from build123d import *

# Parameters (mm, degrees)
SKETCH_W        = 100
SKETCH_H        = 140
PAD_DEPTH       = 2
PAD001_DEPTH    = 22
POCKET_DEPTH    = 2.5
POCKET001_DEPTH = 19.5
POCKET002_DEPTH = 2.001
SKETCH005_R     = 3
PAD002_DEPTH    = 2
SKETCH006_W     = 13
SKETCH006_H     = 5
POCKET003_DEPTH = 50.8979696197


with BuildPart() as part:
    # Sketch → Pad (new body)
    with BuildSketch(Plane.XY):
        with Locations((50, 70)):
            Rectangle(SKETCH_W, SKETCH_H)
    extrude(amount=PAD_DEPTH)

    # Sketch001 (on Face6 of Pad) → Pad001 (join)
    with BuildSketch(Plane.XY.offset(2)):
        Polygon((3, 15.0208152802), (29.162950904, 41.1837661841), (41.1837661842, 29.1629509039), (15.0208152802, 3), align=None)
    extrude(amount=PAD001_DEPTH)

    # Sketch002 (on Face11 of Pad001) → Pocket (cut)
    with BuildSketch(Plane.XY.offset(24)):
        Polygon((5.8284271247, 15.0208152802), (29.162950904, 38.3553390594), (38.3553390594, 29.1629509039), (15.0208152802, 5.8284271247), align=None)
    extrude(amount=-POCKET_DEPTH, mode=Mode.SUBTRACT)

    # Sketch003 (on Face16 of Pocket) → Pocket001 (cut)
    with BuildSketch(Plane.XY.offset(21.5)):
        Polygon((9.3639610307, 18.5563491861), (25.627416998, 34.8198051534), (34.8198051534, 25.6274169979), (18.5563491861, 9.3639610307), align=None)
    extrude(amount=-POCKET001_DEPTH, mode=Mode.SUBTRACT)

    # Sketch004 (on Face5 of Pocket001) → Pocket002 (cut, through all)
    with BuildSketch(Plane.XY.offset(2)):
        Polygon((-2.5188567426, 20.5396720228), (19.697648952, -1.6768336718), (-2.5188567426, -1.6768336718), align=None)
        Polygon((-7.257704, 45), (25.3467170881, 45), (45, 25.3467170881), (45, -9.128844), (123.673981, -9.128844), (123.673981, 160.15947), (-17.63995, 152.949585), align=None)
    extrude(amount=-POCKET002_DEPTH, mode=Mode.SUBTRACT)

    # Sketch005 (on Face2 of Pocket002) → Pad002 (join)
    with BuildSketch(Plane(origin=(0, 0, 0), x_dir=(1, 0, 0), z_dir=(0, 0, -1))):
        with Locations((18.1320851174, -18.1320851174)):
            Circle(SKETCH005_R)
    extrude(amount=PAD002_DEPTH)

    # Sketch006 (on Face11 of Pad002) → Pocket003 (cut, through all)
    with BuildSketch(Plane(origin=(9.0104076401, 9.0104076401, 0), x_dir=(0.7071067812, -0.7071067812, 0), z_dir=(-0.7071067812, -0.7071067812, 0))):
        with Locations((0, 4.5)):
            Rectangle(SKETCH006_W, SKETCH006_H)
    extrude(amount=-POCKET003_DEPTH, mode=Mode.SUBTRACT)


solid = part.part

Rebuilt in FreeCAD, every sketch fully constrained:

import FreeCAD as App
import Part
import Sketcher

V = App.Vector
Q = App.Units.Quantity

doc = App.newDocument("Part")
body = doc.addObject("PartDesign::Body", "Body")

# Sketch on XY plane
sketch1 = body.newObject("Sketcher::SketchObject", "Sketch")
sketch1.AttachmentSupport = (doc.getObject("XY_Plane"), [""])
sketch1.MapMode = "FlatFace"
sketch1.addGeometry(Part.LineSegment(V(0, 140, 0), V(0, 0, 0)), False)
sketch1.addGeometry(Part.LineSegment(V(0, 0, 0), V(100, 0, 0)), False)
sketch1.addGeometry(Part.LineSegment(V(100, 0, 0), V(100, 140, 0)), False)
sketch1.addGeometry(Part.LineSegment(V(100, 140, 0), V(0, 140, 0)), False)
sketch1.addConstraint(Sketcher.Constraint("Coincident", 0, 2, 1, 1))
sketch1.addConstraint(Sketcher.Constraint("Coincident", 1, 2, 2, 1))
sketch1.addConstraint(Sketcher.Constraint("Coincident", 2, 2, 3, 1))
sketch1.addConstraint(Sketcher.Constraint("Coincident", 3, 2, 0, 1))
sketch1.addConstraint(Sketcher.Constraint("Vertical", 0))
sketch1.addConstraint(Sketcher.Constraint("Horizontal", 1))
sketch1.addConstraint(Sketcher.Constraint("Vertical", 2))
sketch1.addConstraint(Sketcher.Constraint("Horizontal", 3))
sketch1.addConstraint(Sketcher.Constraint("Coincident", 0, 2, -1, 1))
sketch1.addConstraint(Sketcher.Constraint("DistanceX", 1, 1, 1, 2, 100.0))
sketch1.addConstraint(Sketcher.Constraint("DistanceY", 0, 2, 0, 1, 140.0))
pad1 = body.newObject("PartDesign::Pad", "Pad")
pad1.Profile = sketch1
pad1.Length = 2

# Sketch on XY plane
sketch2 = body.newObject("Sketcher::SketchObject", "Sketch001")
sketch2.AttachmentSupport = (doc.getObject("XY_Plane"), [""])
sketch2.MapMode = "FlatFace"
sketch2.AttachmentOffset = App.Placement(V(0, 0, 2), App.Rotation())
sketch2.addGeometry(Part.LineSegment(V(29.162951, 41.183766, 0), V(3, 15.020815, 0)), False)
sketch2.addGeometry(Part.LineSegment(V(3, 15.020815, 0), V(15.020815, 3, 0)), False)
sketch2.addGeometry(Part.LineSegment(V(15.020815, 3, 0), V(41.183766, 29.162951, 0)), False)
sketch2.addGeometry(Part.LineSegment(V(41.183766, 29.162951, 0), V(29.162951, 41.183766, 0)), False)
sketch2.addConstraint(Sketcher.Constraint("Coincident", 0, 2, 1, 1))
sketch2.addConstraint(Sketcher.Constraint("Coincident", 1, 2, 2, 1))
sketch2.addConstraint(Sketcher.Constraint("Coincident", 2, 2, 3, 1))
sketch2.addConstraint(Sketcher.Constraint("Coincident", 3, 2, 0, 1))
sketch2.addConstraint(Sketcher.Constraint("Perpendicular", 0, 1))
sketch2.addConstraint(Sketcher.Constraint("Perpendicular", 1, 2))
sketch2.addConstraint(Sketcher.Constraint("Perpendicular", 2, 3))
sketch2.addConstraint(Sketcher.Constraint("Angle", 0, Q("-135 deg")))
sketch2.addConstraint(Sketcher.Constraint("Distance", 0, 37.0))
sketch2.addConstraint(Sketcher.Constraint("Distance", 1, 17.0))
sketch2.addConstraint(Sketcher.Constraint("DistanceX", -1, 1, 0, 2, 3.0))
sketch2.addConstraint(Sketcher.Constraint("DistanceY", -1, 1, 1, 2, 3.0))
pad2 = body.newObject("PartDesign::Pad", "Pad001")
pad2.Profile = sketch2
pad2.Length = 22

# Sketch on XY plane
sketch3 = body.newObject("Sketcher::SketchObject", "Sketch002")
sketch3.AttachmentSupport = (doc.getObject("XY_Plane"), [""])
sketch3.MapMode = "FlatFace"
sketch3.AttachmentOffset = App.Placement(V(0, 0, 24), App.Rotation())
sketch3.addGeometry(Part.LineSegment(V(29.162951, 38.355339, 0), V(5.828427, 15.020815, 0)), False)
sketch3.addGeometry(Part.LineSegment(V(5.828427, 15.020815, 0), V(15.020815, 5.828427, 0)), False)
sketch3.addGeometry(Part.LineSegment(V(15.020815, 5.828427, 0), V(38.355339, 29.162951, 0)), False)
sketch3.addGeometry(Part.LineSegment(V(38.355339, 29.162951, 0), V(29.162951, 38.355339, 0)), False)
sketch3.addConstraint(Sketcher.Constraint("Coincident", 0, 2, 1, 1))
sketch3.addConstraint(Sketcher.Constraint("Coincident", 1, 2, 2, 1))
sketch3.addConstraint(Sketcher.Constraint("Coincident", 2, 2, 3, 1))
sketch3.addConstraint(Sketcher.Constraint("Coincident", 3, 2, 0, 1))
sketch3.addConstraint(Sketcher.Constraint("Perpendicular", 0, 1))
sketch3.addConstraint(Sketcher.Constraint("Perpendicular", 1, 2))
sketch3.addConstraint(Sketcher.Constraint("Perpendicular", 2, 3))
sketch3.addConstraint(Sketcher.Constraint("Angle", 0, Q("-135 deg")))
sketch3.addConstraint(Sketcher.Constraint("Distance", 0, 33.0))
sketch3.addConstraint(Sketcher.Constraint("Distance", 1, 13.0))
sketch3.addConstraint(Sketcher.Constraint("DistanceX", -1, 1, 2, 2, 38.355339))
sketch3.addConstraint(Sketcher.Constraint("DistanceY", -1, 1, 2, 2, 29.162951))
pocket1 = body.newObject("PartDesign::Pocket", "Pocket")
pocket1.Profile = sketch3
pocket1.Length = 2.5

# Sketch on XY plane
sketch4 = body.newObject("Sketcher::SketchObject", "Sketch003")
sketch4.AttachmentSupport = (doc.getObject("XY_Plane"), [""])
sketch4.MapMode = "FlatFace"
sketch4.AttachmentOffset = App.Placement(V(0, 0, 21.5), App.Rotation())
sketch4.addGeometry(Part.LineSegment(V(25.627417, 34.819805, 0), V(9.363961, 18.556349, 0)), False)
sketch4.addGeometry(Part.LineSegment(V(9.363961, 18.556349, 0), V(18.556349, 9.363961, 0)), False)
sketch4.addGeometry(Part.LineSegment(V(18.556349, 9.363961, 0), V(34.819805, 25.627417, 0)), False)
sketch4.addGeometry(Part.LineSegment(V(34.819805, 25.627417, 0), V(25.627417, 34.819805, 0)), False)
sketch4.addConstraint(Sketcher.Constraint("Coincident", 0, 2, 1, 1))
sketch4.addConstraint(Sketcher.Constraint("Coincident", 1, 2, 2, 1))
sketch4.addConstraint(Sketcher.Constraint("Coincident", 2, 2, 3, 1))
sketch4.addConstraint(Sketcher.Constraint("Coincident", 3, 2, 0, 1))
sketch4.addConstraint(Sketcher.Constraint("Perpendicular", 0, 1))
sketch4.addConstraint(Sketcher.Constraint("Perpendicular", 1, 2))
sketch4.addConstraint(Sketcher.Constraint("Perpendicular", 2, 3))
sketch4.addConstraint(Sketcher.Constraint("Angle", 0, Q("-135 deg")))
sketch4.addConstraint(Sketcher.Constraint("Distance", 0, 23.0))
sketch4.addConstraint(Sketcher.Constraint("Distance", 1, 13.0))
sketch4.addConstraint(Sketcher.Constraint("DistanceX", -1, 1, 0, 2, 9.363961))
sketch4.addConstraint(Sketcher.Constraint("DistanceY", -1, 1, 0, 2, 18.556349))
pocket2 = body.newObject("PartDesign::Pocket", "Pocket001")
pocket2.Profile = sketch4
pocket2.Length = 19.5

# Sketch on XY plane
sketch5 = body.newObject("Sketcher::SketchObject", "Sketch004")
sketch5.AttachmentSupport = (doc.getObject("XY_Plane"), [""])
sketch5.MapMode = "FlatFace"
sketch5.AttachmentOffset = App.Placement(V(0, 0, 2), App.Rotation())
sketch5.addGeometry(Part.LineSegment(V(19.697649, -1.676834, 0), V(-2.518857, 20.539672, 0)), False)
sketch5.addGeometry(Part.LineSegment(V(-2.518857, 20.539672, 0), V(-2.518857, -1.676834, 0)), False)
sketch5.addGeometry(Part.LineSegment(V(-2.518857, -1.676834, 0), V(19.697649, -1.676834, 0)), False)
sketch5.addGeometry(Part.LineSegment(V(-7.257704, 45, 0), V(25.346717, 45, 0)), False)
sketch5.addGeometry(Part.LineSegment(V(25.346717, 45, 0), V(45, 25.346717, 0)), False)
sketch5.addGeometry(Part.LineSegment(V(45, 25.346717, 0), V(45, -9.128844, 0)), False)
sketch5.addGeometry(Part.LineSegment(V(45, -9.128844, 0), V(123.673981, -9.128844, 0)), False)
sketch5.addGeometry(Part.LineSegment(V(123.673981, -9.128844, 0), V(123.673981, 160.15947, 0)), False)
sketch5.addGeometry(Part.LineSegment(V(123.673981, 160.15947, 0), V(-17.63995, 152.949585, 0)), False)
sketch5.addGeometry(Part.LineSegment(V(-17.63995, 152.949585, 0), V(-7.257704, 45, 0)), False)
sketch5.addConstraint(Sketcher.Constraint("Coincident", 0, 2, 1, 1))
sketch5.addConstraint(Sketcher.Constraint("Coincident", 1, 2, 2, 1))
sketch5.addConstraint(Sketcher.Constraint("Coincident", 2, 2, 0, 1))
sketch5.addConstraint(Sketcher.Constraint("Coincident", 3, 2, 4, 1))
sketch5.addConstraint(Sketcher.Constraint("Coincident", 4, 2, 5, 1))
sketch5.addConstraint(Sketcher.Constraint("Coincident", 5, 2, 6, 1))
sketch5.addConstraint(Sketcher.Constraint("Coincident", 6, 2, 7, 1))
sketch5.addConstraint(Sketcher.Constraint("Coincident", 7, 2, 8, 1))
sketch5.addConstraint(Sketcher.Constraint("Coincident", 8, 2, 9, 1))
sketch5.addConstraint(Sketcher.Constraint("Coincident", 9, 2, 3, 1))
sketch5.addConstraint(Sketcher.Constraint("Vertical", 1))
sketch5.addConstraint(Sketcher.Constraint("Horizontal", 2))
sketch5.addConstraint(Sketcher.Constraint("Horizontal", 3))
sketch5.addConstraint(Sketcher.Constraint("Vertical", 5))
sketch5.addConstraint(Sketcher.Constraint("Horizontal", 6))
sketch5.addConstraint(Sketcher.Constraint("Vertical", 7))
sketch5.addConstraint(Sketcher.Constraint("Parallel", 0, 4))
sketch5.addConstraint(Sketcher.Constraint("Equal", 2, 1))
sketch5.addConstraint(Sketcher.Constraint("DistanceY", -1, 1, 3, 2, 45.0))
sketch5.addConstraint(Sketcher.Constraint("DistanceX", -1, 1, 4, 2, 45.0))
sketch5.addConstraint(Sketcher.Constraint("Distance", 9, 108.447701))
sketch5.addConstraint(Sketcher.Constraint("DistanceX", 3, 1, 3, 2, 32.604421))
sketch5.addConstraint(Sketcher.Constraint("DistanceX", 6, 1, 6, 2, 78.673981))
sketch5.addConstraint(Sketcher.Constraint("DistanceY", 5, 2, 5, 1, 34.475561))
sketch5.addConstraint(Sketcher.Constraint("Distance", 4, 27.793939))
sketch5.addConstraint(Sketcher.Constraint("DistanceX", 2, 1, 2, 2, 22.216506))
sketch5.addConstraint(Sketcher.Constraint("DistanceY", 7, 1, 7, 2, 169.288314))
sketch5.addConstraint(Sketcher.Constraint("DistanceX", -1, 1, 2, 2, 19.697649))
sketch5.addConstraint(Sketcher.Constraint("DistanceX", 8, 2, -1, 1, 17.63995))
sketch5.addConstraint(Sketcher.Constraint("DistanceY", 2, 2, 4, 2, 27.023551))
pocket3 = body.newObject("PartDesign::Pocket", "Pocket002")
pocket3.Profile = sketch5
pocket3.Type = "ThroughAll"

# Sketch on XY plane
sketch6 = body.newObject("Sketcher::SketchObject", "Sketch005")
sketch6.AttachmentSupport = (doc.getObject("XY_Plane"), [""])
sketch6.MapMode = "FlatFace"
sketch6.addGeometry(Part.Circle(V(18.132085, 18.132085, 0), V(0, 0, 1), 3), False)
sketch6.addConstraint(Sketcher.Constraint("Diameter", 0, 6.0))
sketch6.addConstraint(Sketcher.Constraint("DistanceX", -1, 1, 0, 3, 18.132085))
sketch6.addConstraint(Sketcher.Constraint("DistanceY", -1, 1, 0, 3, 18.132085))
pad3 = body.newObject("PartDesign::Pad", "Pad002")
pad3.Profile = sketch6
pad3.Length = 2
pad3.Reversed = True

# Sketch on an angled plane
sketch7 = body.newObject("Sketcher::SketchObject", "Sketch006")
sketch7.Placement = App.Placement(V(9.010408, 9.010408, 0), App.Rotation(V(0.707106781, -0.707106781, 0), V(0, 0, 0.999999999), V(-0.707106781, -0.707106781, 0), "ZXY"))
sketch7.addGeometry(Part.LineSegment(V(-6.5, 7, 0), V(-6.5, 2, 0)), False)
sketch7.addGeometry(Part.LineSegment(V(-6.5, 2, 0), V(6.5, 2, 0)), False)
sketch7.addGeometry(Part.LineSegment(V(6.5, 2, 0), V(6.5, 7, 0)), False)
sketch7.addGeometry(Part.LineSegment(V(6.5, 7, 0), V(-6.5, 7, 0)), False)
sketch7.addConstraint(Sketcher.Constraint("Coincident", 0, 2, 1, 1))
sketch7.addConstraint(Sketcher.Constraint("Coincident", 1, 2, 2, 1))
sketch7.addConstraint(Sketcher.Constraint("Coincident", 2, 2, 3, 1))
sketch7.addConstraint(Sketcher.Constraint("Coincident", 3, 2, 0, 1))
sketch7.addConstraint(Sketcher.Constraint("Vertical", 0))
sketch7.addConstraint(Sketcher.Constraint("Horizontal", 1))
sketch7.addConstraint(Sketcher.Constraint("Vertical", 2))
sketch7.addConstraint(Sketcher.Constraint("Horizontal", 3))
sketch7.addConstraint(Sketcher.Constraint("DistanceX", 1, 1, 1, 2, 13.0))
sketch7.addConstraint(Sketcher.Constraint("DistanceY", 0, 2, 0, 1, 5.0))
sketch7.addConstraint(Sketcher.Constraint("DistanceY", -1, 1, 0, 2, 2.0))
sketch7.addConstraint(Sketcher.Constraint("DistanceX", 0, 2, -1, 1, 6.5))
pocket4 = body.newObject("PartDesign::Pocket", "Pocket003")
pocket4.Profile = sketch7
pocket4.Type = "ThroughAll"

doc.recompute()
